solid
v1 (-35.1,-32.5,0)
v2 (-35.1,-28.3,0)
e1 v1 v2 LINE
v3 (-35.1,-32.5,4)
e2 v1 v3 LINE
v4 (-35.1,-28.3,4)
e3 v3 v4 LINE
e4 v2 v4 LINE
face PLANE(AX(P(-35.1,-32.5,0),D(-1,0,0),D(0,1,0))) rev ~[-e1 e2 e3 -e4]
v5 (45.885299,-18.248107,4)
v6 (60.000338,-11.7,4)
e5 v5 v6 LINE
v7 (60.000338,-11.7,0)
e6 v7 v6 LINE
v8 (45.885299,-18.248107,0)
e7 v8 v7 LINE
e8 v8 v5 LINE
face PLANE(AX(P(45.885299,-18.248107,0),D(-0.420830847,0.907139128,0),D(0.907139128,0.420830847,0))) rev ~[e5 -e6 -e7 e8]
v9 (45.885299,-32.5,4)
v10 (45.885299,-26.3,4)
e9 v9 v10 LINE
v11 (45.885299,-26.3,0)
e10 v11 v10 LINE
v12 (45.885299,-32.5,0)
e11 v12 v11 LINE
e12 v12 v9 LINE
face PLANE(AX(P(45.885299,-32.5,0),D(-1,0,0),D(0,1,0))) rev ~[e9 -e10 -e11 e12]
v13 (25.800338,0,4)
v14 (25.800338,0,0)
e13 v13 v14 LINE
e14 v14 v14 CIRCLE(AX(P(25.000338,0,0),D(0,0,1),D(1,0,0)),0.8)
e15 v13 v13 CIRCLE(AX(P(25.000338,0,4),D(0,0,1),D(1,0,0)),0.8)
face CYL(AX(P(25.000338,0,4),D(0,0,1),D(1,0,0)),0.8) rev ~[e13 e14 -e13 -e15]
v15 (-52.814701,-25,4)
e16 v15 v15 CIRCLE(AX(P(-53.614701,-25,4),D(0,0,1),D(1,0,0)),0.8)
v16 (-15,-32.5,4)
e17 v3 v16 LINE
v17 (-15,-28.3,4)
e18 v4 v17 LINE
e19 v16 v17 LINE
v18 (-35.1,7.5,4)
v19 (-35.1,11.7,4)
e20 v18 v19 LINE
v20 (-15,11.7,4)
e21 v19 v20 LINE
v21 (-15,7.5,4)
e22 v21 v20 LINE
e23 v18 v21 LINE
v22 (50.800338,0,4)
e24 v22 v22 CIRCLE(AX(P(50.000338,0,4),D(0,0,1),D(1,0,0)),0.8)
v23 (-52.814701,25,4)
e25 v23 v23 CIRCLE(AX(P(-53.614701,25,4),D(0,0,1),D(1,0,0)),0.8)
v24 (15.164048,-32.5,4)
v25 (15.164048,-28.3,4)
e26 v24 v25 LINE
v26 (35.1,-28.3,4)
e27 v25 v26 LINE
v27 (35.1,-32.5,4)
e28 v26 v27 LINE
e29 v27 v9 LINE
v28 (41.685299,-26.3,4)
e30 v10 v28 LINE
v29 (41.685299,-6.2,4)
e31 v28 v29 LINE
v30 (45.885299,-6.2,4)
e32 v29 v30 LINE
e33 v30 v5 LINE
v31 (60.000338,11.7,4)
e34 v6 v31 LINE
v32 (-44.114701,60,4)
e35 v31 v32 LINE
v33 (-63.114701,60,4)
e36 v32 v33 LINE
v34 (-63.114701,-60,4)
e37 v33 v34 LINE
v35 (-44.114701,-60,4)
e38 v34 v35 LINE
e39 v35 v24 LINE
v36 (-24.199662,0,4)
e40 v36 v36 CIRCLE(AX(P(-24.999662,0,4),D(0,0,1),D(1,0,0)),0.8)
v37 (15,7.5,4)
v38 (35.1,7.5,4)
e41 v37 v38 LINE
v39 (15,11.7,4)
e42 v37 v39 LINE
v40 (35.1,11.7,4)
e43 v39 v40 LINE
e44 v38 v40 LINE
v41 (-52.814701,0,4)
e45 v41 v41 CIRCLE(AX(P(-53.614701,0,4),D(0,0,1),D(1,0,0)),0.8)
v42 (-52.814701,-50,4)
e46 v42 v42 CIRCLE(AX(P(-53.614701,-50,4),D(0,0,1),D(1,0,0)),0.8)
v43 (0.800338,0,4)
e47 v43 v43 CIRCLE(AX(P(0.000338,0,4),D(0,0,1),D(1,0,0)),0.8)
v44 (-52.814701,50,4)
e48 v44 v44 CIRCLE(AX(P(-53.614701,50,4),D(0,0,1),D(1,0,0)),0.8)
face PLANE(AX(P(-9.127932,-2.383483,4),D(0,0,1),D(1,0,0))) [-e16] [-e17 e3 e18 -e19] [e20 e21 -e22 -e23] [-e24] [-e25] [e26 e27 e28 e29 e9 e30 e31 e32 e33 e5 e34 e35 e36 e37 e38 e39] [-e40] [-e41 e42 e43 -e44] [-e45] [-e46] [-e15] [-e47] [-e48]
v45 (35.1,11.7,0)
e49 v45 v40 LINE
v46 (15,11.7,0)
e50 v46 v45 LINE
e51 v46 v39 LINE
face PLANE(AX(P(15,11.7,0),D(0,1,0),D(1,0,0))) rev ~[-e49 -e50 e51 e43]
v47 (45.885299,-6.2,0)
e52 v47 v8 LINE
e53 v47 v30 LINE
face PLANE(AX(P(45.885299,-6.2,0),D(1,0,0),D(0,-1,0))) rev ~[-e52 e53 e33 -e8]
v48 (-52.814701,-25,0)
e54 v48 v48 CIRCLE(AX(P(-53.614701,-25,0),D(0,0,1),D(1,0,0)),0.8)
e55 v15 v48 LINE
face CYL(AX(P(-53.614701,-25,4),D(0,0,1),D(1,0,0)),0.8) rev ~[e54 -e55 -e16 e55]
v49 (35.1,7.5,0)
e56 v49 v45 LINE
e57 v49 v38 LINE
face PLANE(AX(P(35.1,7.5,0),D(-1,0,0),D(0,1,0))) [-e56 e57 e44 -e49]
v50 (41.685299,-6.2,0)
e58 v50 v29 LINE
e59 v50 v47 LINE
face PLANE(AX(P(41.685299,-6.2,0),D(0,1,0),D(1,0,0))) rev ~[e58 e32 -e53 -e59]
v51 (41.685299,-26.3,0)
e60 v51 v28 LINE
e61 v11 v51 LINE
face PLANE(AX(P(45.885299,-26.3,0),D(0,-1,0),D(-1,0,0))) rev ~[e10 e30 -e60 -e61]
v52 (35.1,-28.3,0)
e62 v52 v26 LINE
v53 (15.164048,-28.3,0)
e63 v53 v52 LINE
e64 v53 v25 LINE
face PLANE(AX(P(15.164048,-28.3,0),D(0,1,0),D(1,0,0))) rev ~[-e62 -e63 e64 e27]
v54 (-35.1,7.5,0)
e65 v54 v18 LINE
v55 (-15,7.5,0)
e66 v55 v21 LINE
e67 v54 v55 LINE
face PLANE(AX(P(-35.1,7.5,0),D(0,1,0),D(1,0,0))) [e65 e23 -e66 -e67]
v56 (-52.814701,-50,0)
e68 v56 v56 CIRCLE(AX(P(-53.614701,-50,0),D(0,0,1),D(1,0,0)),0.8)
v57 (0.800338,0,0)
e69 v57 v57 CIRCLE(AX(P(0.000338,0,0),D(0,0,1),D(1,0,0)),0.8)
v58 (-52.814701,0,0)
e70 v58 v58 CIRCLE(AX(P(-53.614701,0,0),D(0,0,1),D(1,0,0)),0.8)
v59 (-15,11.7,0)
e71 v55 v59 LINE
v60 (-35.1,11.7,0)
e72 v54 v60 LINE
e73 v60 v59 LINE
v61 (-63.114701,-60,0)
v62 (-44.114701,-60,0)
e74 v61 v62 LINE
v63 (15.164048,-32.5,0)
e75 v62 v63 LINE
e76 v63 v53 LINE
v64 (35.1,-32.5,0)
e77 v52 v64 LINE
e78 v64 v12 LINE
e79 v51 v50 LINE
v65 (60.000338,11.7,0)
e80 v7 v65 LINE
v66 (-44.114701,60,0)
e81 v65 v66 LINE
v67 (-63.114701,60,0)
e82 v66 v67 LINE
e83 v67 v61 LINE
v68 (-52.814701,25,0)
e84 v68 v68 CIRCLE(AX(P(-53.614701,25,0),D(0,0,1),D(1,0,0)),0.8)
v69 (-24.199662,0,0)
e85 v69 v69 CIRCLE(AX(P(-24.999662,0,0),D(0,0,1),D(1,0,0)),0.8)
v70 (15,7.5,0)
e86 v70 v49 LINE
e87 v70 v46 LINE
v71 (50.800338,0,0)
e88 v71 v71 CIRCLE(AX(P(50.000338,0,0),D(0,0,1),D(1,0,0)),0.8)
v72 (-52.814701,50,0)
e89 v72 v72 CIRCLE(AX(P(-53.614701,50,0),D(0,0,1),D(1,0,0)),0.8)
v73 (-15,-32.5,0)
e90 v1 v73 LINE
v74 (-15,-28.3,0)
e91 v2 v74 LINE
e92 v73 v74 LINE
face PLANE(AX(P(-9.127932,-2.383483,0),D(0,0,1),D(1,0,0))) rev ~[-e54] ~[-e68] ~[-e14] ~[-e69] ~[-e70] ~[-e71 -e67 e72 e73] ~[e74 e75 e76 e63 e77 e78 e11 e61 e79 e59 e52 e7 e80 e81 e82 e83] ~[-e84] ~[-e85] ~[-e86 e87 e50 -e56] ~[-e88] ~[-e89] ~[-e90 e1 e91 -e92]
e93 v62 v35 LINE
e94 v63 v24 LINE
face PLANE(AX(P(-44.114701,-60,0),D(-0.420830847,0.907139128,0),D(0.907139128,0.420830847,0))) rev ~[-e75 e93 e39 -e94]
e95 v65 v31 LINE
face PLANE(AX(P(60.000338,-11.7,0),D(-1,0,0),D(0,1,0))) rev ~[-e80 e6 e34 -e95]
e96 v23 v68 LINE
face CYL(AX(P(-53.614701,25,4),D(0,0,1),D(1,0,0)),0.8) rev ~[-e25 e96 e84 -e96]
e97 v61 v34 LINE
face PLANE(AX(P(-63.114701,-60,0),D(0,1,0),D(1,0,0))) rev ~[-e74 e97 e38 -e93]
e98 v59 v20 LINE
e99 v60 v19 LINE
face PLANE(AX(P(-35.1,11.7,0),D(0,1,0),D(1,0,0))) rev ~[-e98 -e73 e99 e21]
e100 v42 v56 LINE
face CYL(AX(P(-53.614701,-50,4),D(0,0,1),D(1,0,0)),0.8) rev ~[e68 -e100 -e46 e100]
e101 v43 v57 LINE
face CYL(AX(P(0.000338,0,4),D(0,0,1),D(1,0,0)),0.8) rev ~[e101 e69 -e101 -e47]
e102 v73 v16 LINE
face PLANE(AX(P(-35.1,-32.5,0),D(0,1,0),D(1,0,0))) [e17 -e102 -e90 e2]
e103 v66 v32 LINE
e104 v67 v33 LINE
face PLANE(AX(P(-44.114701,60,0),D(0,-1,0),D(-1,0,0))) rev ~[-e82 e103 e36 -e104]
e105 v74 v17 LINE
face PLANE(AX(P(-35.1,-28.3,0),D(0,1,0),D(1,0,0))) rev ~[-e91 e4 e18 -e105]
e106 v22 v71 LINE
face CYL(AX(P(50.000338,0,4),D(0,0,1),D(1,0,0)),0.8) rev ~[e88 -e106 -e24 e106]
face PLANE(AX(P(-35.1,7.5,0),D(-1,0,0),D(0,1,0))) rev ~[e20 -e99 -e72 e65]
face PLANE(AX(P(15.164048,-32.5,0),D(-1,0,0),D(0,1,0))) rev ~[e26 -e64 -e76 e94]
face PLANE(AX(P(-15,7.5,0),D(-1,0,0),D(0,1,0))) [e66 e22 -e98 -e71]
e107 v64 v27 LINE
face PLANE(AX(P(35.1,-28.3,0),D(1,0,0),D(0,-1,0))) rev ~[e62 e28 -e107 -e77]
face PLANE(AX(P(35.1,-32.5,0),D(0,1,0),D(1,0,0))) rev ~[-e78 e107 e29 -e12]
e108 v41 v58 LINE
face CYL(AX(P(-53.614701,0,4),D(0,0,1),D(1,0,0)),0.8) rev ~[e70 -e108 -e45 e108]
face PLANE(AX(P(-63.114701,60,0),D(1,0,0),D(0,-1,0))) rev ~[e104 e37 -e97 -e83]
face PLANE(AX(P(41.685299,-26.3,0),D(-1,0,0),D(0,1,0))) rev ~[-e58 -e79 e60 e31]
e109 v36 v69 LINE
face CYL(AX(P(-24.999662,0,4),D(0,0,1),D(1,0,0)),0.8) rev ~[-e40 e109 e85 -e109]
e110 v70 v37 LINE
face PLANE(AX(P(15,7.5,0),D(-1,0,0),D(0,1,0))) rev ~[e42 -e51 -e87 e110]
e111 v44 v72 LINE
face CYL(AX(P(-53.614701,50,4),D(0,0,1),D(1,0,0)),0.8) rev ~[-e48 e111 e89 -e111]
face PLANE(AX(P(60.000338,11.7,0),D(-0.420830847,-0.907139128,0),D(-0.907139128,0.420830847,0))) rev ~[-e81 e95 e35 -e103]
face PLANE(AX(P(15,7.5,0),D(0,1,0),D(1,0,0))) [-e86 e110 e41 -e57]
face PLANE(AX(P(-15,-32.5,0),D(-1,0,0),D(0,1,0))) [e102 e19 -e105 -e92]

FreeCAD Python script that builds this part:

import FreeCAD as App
import Part
import Sketcher

doc = App.newDocument("Part")
body = doc.addObject("PartDesign::Body", "Body")

sketch1 = body.newObject("Sketcher::SketchObject", "Sketch")
sketch1.AttachmentSupport = (doc.getObject("XY_Plane"), [""])
sketch1.MapMode = "FlatFace"
sketch1.addGeometry([
    Part.LineSegment(App.Vector(-63.114701, 60, 0), App.Vector(-63.114701, -60, 0)),
    Part.LineSegment(App.Vector(-63.114701, -60, 0), App.Vector(-44.114701, -60, 0)),
    Part.LineSegment(App.Vector(-44.114701, -60, 0), App.Vector(15.164048, -32.5, 0)),
    Part.LineSegment(App.Vector(15.164048, -32.5, 0), App.Vector(15.164048, -28.3, 0)),
    Part.LineSegment(App.Vector(15.164048, -28.3, 0), App.Vector(35.1, -28.3, 0)),
    Part.LineSegment(App.Vector(35.1, -28.3, 0), App.Vector(35.1, -32.5, 0)),
    Part.LineSegment(App.Vector(35.1, -32.5, 0), App.Vector(45.885299, -32.5, 0)),
    Part.LineSegment(App.Vector(45.885299, -32.5, 0), App.Vector(45.885299, -26.3, 0)),
    Part.LineSegment(App.Vector(45.885299, -26.3, 0), App.Vector(41.685299, -26.3, 0)),
    Part.LineSegment(App.Vector(41.685299, -26.3, 0), App.Vector(41.685299, -6.2, 0)),
    Part.LineSegment(App.Vector(41.685299, -6.2, 0), App.Vector(45.885299, -6.2, 0)),
    Part.LineSegment(App.Vector(45.885299, -6.2, 0), App.Vector(45.885299, -18.248107, 0)),
    Part.LineSegment(App.Vector(45.885299, -18.248107, 0), App.Vector(60.000338, -11.7, 0)),
    Part.LineSegment(App.Vector(60.000338, -11.7, 0), App.Vector(60.000338, 11.7, 0)),
    Part.LineSegment(App.Vector(60.000338, 11.7, 0), App.Vector(-44.114701, 60, 0)),
    Part.LineSegment(App.Vector(-44.114701, 60, 0), App.Vector(-63.114701, 60, 0)),
    Part.LineSegment(App.Vector(-15, -32.5, 0), App.Vector(-35.1, -32.5, 0)),
    Part.LineSegment(App.Vector(-35.1, -32.5, 0), App.Vector(-35.1, -28.3, 0)),
    Part.LineSegment(App.Vector(-35.1, -28.3, 0), App.Vector(-15, -28.3, 0)),
    Part.LineSegment(App.Vector(-15, -28.3, 0), App.Vector(-15, -32.5, 0)),
    Part.LineSegment(App.Vector(-15, 7.5, 0), App.Vector(-35.1, 7.5, 0)),
    Part.LineSegment(App.Vector(-35.1, 7.5, 0), App.Vector(-35.1, 11.7, 0)),
    Part.LineSegment(App.Vector(-35.1, 11.7, 0), App.Vector(-15, 11.7, 0)),
    Part.LineSegment(App.Vector(-15, 11.7, 0), App.Vector(-15, 7.5, 0)),
    Part.LineSegment(App.Vector(35.1, 7.5, 0), App.Vector(15, 7.5, 0)),
    Part.LineSegment(App.Vector(15, 7.5, 0), App.Vector(15, 11.7, 0)),
    Part.LineSegment(App.Vector(15, 11.7, 0), App.Vector(35.1, 11.7, 0)),
    Part.LineSegment(App.Vector(35.1, 11.7, 0), App.Vector(35.1, 7.5, 0)),
], False)
sketch1.addConstraint([
    Sketcher.Constraint("Coincident", 0, 2, 1, 1),
    Sketcher.Constraint("Coincident", 1, 2, 2, 1),
    Sketcher.Constraint("Coincident", 2, 2, 3, 1),
    Sketcher.Constraint("Coincident", 3, 2, 4, 1),
    Sketcher.Constraint("Coincident", 4, 2, 5, 1),
    Sketcher.Constraint("Coincident", 5, 2, 6, 1),
    Sketcher.Constraint("Coincident", 6, 2, 7, 1),
    Sketcher.Constraint("Coincident", 7, 2, 8, 1),
    Sketcher.Constraint("Coincident", 8, 2, 9, 1),
    Sketcher.Constraint("Coincident", 9, 2, 10, 1),
    Sketcher.Constraint("Coincident", 10, 2, 11, 1),
    Sketcher.Constraint("Coincident", 11, 2, 12, 1),
    Sketcher.Constraint("Coincident", 12, 2, 13, 1),
    Sketcher.Constraint("Coincident", 13, 2, 14, 1),
    Sketcher.Constraint("Coincident", 14, 2, 15, 1),
    Sketcher.Constraint("Coincident", 15, 2, 0, 1),
    Sketcher.Constraint("Coincident", 16, 2, 17, 1),
    Sketcher.Constraint("Coincident", 17, 2, 18, 1),
    Sketcher.Constraint("Coincident", 18, 2, 19, 1),
    Sketcher.Constraint("Coincident", 19, 2, 16, 1),
    Sketcher.Constraint("Coincident", 20, 2, 21, 1),
    Sketcher.Constraint("Coincident", 21, 2, 22, 1),
    Sketcher.Constraint("Coincident", 22, 2, 23, 1),
    Sketcher.Constraint("Coincident", 23, 2, 20, 1),
    Sketcher.Constraint("Coincident", 24, 2, 25, 1),
    Sketcher.Constraint("Coincident", 25, 2, 26, 1),
    Sketcher.Constraint("Coincident", 26, 2, 27, 1),
    Sketcher.Constraint("Coincident", 27, 2, 24, 1),
    Sketcher.Constraint("Vertical", 0),
    Sketcher.Constraint("Horizontal", 1),
    Sketcher.Constraint("Vertical", 3),
    Sketcher.Constraint("Horizontal", 4),
    Sketcher.Constraint("Vertical", 5),
    Sketcher.Constraint("Horizontal", 6),
    Sketcher.Constraint("Vertical", 7),
    Sketcher.Constraint("Horizontal", 8),
    Sketcher.Constraint("Vertical", 9),
    Sketcher.Constraint("Horizontal", 10),
    Sketcher.Constraint("Vertical", 11),
    Sketcher.Constraint("Vertical", 13),
    Sketcher.Constraint("Horizontal", 15),
    Sketcher.Constraint("Horizontal", 16),
    Sketcher.Constraint("Vertical", 17),
    Sketcher.Constraint("Horizontal", 18),
    Sketcher.Constraint("Vertical", 19),
    Sketcher.Constraint("Horizontal", 20),
    Sketcher.Constraint("Vertical", 21),
    Sketcher.Constraint("Horizontal", 22),
    Sketcher.Constraint("Vertical", 23),
    Sketcher.Constraint("Horizontal", 24),
    Sketcher.Constraint("Vertical", 25),
    Sketcher.Constraint("Horizontal", 26),
    Sketcher.Constraint("Vertical", 27),
    Sketcher.Constraint("Symmetric", 5, 2, 16, 2, -2),
    Sketcher.Constraint("Symmetric", 23, 2, 24, 2, -2),
    Sketcher.Constraint("Symmetric", 21, 2, 26, 2, -2),
    Sketcher.Constraint("Symmetric", 1, 2, 14, 2, -1),
    Sketcher.Constraint("Parallel", 2, 12),
    Sketcher.Constraint("Horizontal", 2, 2, 5, 2),
    Sketcher.Constraint("Horizontal", 4, 2, 17, 2),
    Sketcher.Constraint("Horizontal", 13, 2, 21, 2),
    Sketcher.Constraint("Vertical", 7, 2, 10, 2),
    Sketcher.Constraint("Vertical", 17, 2, 20, 2),
    Sketcher.Constraint("Vertical", 19, 2, 22, 2),
    Sketcher.Constraint("Equal", 10, 3),
    Sketcher.Constraint("Equal", 26, 9),
    Sketcher.Constraint("Equal", 19, 21),
    Sketcher.Constraint("DistanceX", 1, 1, 1, 2, 19.0),
    Sketcher.Constraint("DistanceY", 0, 2, 0, 1, 120.0),
    Sketcher.Constraint("DistanceX", 8, 2, 8, 1, 4.2),
    Sketcher.Constraint("DistanceX", 16, 2, 16, 1, 20.1),
    Sketcher.Constraint("DistanceY", 7, 1, 7, 2, 6.2),
    Sketcher.Constraint("DistanceY", 13, 1, 13, 2, 23.4),
    Sketcher.Constraint("DistanceX", 18, 2, -1, 1, 15.0),
    Sketcher.Constraint("DistanceX", 1, 2, 6, 2, 90.0),
    Sketcher.Constraint("DistanceY", 7, 2, 13, 2, 38.0),
    Sketcher.Constraint("DistanceY", 2, 2, -1, 1, 32.5),
    Sketcher.Constraint("DistanceX", 6, 1, 6, 2, 10.785299),
    Sketcher.Constraint("Distance", 2, 65.346921),
    Sketcher.Constraint("Distance", 12, 15.559949),
])
pad1 = body.newObject("PartDesign::Pad", "Pad")
pad1.Profile = sketch1
pad1.Length = 4

sketch2 = body.newObject("Sketcher::SketchObject", "Sketch001")
sketch2.AttachmentSupport = (doc.getObject("XY_Plane"), [""])
sketch2.MapMode = "FlatFace"
sketch2.AttachmentOffset = App.Placement(App.Vector(0, 0, 4), App.Rotation())
sketch2.addGeometry(Part.Circle(App.Vector(-53.614701, 50, 0), App.Vector(0, 0, 1), 0.8), False)
sketch2.addConstraint([
    Sketcher.Constraint("Diameter", 0, 1.6),
    Sketcher.Constraint("DistanceY", -1, 1, 0, 3, 50.0),
    Sketcher.Constraint("DistanceX", 0, 3, -1, 1, 53.614701),
])
pocket1 = body.newObject("PartDesign::Pocket", "Pocket")
pocket1.Profile = sketch2
pocket1.Length = 4

sketch3 = body.newObject("Sketcher::SketchObject", "Sketch002")
sketch3.AttachmentSupport = (doc.getObject("XY_Plane"), [""])
sketch3.MapMode = "FlatFace"
sketch3.AttachmentOffset = App.Placement(App.Vector(0, 0, 4), App.Rotation())
sketch3.addGeometry(Part.Circle(App.Vector(50.000338, 0, 0), App.Vector(0, 0, 1), 0.8), False)
sketch3.addConstraint([
    Sketcher.Constraint("PointOnObject", 0, 3, -1),
    Sketcher.Constraint("Diameter", 0, 1.6),
    Sketcher.Constraint("DistanceX", -1, 1, 0, 3, 50.000338),
])
pocket2 = body.newObject("PartDesign::Pocket", "Pocket001")
pocket2.Profile = sketch3
pocket2.Length = 4
doc.recompute()

linearpattern = body.newObject("PartDesign::LinearPattern", "LinearPattern")
linearpattern.Originals = [pocket1]
linearpattern.Direction = (doc.getObject("Y_Axis"), [""])
linearpattern.Mode = "offset"
linearpattern.Offset = 25
linearpattern.Occurrences = 6
linearpattern.Reversed = True
body.Tip = linearpattern
doc.recompute()

linearpattern2 = body.newObject("PartDesign::LinearPattern", "LinearPattern001")
linearpattern2.Originals = [pocket2]
linearpattern2.Direction = (doc.getObject("X_Axis"), [""])
linearpattern2.Mode = "offset"
linearpattern2.Offset = 25
linearpattern2.Occurrences = 4
linearpattern2.Reversed = True
body.Tip = linearpattern2

doc.recompute()
